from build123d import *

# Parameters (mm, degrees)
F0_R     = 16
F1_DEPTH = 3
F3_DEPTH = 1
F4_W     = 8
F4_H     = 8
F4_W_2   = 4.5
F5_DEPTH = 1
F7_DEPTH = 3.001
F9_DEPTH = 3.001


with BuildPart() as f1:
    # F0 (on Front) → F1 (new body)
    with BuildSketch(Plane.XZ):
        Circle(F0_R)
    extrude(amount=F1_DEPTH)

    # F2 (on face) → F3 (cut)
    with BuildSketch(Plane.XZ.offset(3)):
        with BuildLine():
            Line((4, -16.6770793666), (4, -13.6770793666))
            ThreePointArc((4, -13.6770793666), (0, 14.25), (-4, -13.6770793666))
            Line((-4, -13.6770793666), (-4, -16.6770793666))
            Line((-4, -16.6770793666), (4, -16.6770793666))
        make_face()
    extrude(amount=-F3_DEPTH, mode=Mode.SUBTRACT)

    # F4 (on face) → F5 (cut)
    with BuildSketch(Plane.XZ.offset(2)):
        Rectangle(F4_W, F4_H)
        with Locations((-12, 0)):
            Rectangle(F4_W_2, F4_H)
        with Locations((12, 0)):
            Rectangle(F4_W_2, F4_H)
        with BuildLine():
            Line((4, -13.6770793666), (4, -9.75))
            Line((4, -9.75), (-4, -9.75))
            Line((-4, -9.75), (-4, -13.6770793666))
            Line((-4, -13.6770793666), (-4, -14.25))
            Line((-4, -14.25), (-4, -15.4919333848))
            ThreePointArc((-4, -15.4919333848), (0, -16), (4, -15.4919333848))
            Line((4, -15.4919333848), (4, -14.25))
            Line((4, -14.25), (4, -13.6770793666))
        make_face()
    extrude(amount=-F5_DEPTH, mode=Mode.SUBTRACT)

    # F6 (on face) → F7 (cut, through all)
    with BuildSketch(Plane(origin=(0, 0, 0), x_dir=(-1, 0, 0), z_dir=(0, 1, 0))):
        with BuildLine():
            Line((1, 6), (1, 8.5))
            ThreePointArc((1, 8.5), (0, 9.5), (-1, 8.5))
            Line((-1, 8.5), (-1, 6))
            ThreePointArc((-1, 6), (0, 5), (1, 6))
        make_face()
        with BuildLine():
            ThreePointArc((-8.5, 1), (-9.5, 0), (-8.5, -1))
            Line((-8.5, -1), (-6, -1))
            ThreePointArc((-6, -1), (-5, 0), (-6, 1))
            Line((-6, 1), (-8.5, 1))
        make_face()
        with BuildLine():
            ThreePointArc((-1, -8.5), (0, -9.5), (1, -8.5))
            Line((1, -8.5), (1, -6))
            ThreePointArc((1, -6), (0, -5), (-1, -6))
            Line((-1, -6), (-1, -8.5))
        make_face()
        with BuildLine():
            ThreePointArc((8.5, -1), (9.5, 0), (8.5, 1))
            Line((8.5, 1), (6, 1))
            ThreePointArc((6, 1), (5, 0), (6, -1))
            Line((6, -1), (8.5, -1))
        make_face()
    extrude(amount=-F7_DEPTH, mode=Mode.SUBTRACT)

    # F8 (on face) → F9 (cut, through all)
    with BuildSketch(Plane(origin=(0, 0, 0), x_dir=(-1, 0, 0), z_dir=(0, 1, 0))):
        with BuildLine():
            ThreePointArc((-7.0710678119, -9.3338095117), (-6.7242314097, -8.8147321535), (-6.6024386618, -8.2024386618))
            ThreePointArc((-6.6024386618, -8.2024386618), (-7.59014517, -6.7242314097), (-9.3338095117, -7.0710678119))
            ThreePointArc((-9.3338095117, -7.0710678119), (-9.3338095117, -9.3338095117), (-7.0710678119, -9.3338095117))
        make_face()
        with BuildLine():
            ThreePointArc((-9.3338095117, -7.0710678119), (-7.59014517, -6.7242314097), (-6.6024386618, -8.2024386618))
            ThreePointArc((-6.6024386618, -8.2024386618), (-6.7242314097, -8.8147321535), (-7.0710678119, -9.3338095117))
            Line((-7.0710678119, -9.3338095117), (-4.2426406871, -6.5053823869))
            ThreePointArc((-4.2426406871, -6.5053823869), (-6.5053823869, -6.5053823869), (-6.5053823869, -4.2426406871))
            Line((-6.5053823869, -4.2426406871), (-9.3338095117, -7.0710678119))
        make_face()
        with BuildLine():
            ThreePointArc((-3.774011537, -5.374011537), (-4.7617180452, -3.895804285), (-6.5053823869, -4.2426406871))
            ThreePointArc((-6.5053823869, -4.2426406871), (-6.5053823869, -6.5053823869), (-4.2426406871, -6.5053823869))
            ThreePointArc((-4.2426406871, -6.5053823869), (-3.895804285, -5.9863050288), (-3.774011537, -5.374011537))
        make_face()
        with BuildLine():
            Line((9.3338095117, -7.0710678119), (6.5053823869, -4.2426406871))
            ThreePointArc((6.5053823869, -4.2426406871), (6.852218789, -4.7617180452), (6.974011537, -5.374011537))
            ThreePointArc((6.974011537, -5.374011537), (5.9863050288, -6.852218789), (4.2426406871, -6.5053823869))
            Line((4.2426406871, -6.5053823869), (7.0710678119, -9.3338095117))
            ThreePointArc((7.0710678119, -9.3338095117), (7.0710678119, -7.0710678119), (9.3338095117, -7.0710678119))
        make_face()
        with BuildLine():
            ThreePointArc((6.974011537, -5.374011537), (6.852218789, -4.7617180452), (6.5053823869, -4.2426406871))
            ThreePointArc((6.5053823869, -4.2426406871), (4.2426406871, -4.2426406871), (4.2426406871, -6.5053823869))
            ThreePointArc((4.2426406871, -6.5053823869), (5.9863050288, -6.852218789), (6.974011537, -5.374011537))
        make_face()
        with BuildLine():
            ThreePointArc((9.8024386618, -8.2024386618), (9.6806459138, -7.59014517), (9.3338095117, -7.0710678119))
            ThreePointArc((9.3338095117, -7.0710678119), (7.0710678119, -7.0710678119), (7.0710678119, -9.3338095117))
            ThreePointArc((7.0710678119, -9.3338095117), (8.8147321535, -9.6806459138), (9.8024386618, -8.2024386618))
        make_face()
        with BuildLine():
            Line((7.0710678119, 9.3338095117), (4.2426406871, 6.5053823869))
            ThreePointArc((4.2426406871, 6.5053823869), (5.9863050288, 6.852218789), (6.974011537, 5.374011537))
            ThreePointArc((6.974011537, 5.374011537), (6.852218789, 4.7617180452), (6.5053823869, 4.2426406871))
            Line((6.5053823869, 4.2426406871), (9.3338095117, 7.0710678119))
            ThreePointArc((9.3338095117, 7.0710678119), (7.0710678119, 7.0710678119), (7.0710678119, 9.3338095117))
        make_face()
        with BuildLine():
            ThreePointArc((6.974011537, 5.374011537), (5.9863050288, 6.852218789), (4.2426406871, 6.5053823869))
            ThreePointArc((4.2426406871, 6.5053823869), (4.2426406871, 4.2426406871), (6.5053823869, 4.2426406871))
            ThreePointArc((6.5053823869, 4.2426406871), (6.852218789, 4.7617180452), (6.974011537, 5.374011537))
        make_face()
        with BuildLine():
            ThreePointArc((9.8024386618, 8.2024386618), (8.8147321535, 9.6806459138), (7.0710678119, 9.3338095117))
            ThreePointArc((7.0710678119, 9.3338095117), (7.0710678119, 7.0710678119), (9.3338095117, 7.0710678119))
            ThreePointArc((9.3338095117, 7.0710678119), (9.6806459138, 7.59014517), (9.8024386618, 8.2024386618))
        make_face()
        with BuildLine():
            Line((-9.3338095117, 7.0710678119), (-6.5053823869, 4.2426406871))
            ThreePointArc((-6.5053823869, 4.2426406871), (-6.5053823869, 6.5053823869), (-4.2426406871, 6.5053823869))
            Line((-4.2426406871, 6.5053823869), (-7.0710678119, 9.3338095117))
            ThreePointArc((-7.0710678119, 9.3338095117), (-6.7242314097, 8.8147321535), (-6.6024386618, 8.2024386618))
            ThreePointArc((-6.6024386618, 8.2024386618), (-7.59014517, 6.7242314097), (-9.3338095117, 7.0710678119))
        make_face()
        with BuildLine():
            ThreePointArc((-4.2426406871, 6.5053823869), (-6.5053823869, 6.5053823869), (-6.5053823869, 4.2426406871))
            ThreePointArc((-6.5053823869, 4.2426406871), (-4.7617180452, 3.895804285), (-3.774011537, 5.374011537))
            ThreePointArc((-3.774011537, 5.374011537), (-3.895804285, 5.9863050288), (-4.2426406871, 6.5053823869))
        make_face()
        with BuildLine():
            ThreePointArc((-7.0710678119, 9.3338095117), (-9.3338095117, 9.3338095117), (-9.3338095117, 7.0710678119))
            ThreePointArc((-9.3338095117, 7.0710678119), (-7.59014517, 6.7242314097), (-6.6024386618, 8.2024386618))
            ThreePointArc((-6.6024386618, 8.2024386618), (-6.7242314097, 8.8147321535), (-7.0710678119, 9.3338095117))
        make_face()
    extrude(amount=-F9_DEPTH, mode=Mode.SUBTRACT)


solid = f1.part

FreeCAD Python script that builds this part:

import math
import FreeCAD as App
import Part
import Sketcher
from FreeCAD import Vector
Q = App.Units.Quantity

doc = App.newDocument("Part")
body = doc.addObject("PartDesign::Body", "Body")

# Sketch on XZ plane
sketch1 = body.newObject("Sketcher::SketchObject", "Sketch")
sketch1.AttachmentSupport = (doc.getObject("XZ_Plane"), [""])
sketch1.MapMode = "FlatFace"
sketch1.addGeometry(Part.Circle(Vector(0, 0, 0), Vector(0, 0, 1), 16), False)
sketch1.addConstraint(Sketcher.Constraint("Coincident", 0, 3, -1, 1))
sketch1.addConstraint(Sketcher.Constraint("Diameter", 0, Q("32 mm")))
pad1 = body.newObject("PartDesign::Pad", "Pad")
pad1.Profile = sketch1
pad1.Length = 3

# Sketch on XZ plane
sketch2 = body.newObject("Sketcher::SketchObject", "Sketch001")
sketch2.AttachmentSupport = (doc.getObject("XZ_Plane"), [""])
sketch2.MapMode = "FlatFace"
sketch2.AttachmentOffset = App.Placement(Vector(0, 0, 3), App.Rotation())
sketch2.addGeometry(Part.LineSegment(Vector(4, -16.7, 0), Vector(4, -13.7, 0)), False)
sketch2.addGeometry(Part.ArcOfCircle(Part.Circle(Vector(0, 0, 0), Vector(0, 0, 1), 14.2), math.radians(-74), math.radians(254)), False)
sketch2.addGeometry(Part.LineSegment(Vector(-4, -13.7, 0), Vector(-4, -16.7, 0)), False)
sketch2.addGeometry(Part.LineSegment(Vector(-4, -16.7, 0), Vector(4, -16.7, 0)), False)
sketch2.addConstraint(Sketcher.Constraint("Coincident", 0, 2, 1, 1))
sketch2.addConstraint(Sketcher.Constraint("Coincident", 1, 2, 2, 1))
sketch2.addConstraint(Sketcher.Constraint("Coincident", 2, 2, 3, 1))
sketch2.addConstraint(Sketcher.Constraint("Coincident", 3, 2, 0, 1))
sketch2.addConstraint(Sketcher.Constraint("Vertical", 0))
sketch2.addConstraint(Sketcher.Constraint("Vertical", 2))
sketch2.addConstraint(Sketcher.Constraint("Horizontal", 3))
sketch2.addConstraint(Sketcher.Constraint("Coincident", 1, 3, -1, 1))
sketch2.addConstraint(Sketcher.Constraint("Horizontal", 0, 2, 1, 2))
sketch2.addConstraint(Sketcher.Constraint("DistanceX", 3, 1, 3, 2, Q("8 mm")))
sketch2.addConstraint(Sketcher.Constraint("DistanceY", 0, 1, 0, 2, Q("3 mm")))
sketch2.addConstraint(Sketcher.Constraint("Radius", 1, Q("14.25 mm")))
pocket1 = body.newObject("PartDesign::Pocket", "Pocket")
pocket1.Profile = sketch2
pocket1.Length = 1

# Sketch on XZ plane
sketch3 = body.newObject("Sketcher::SketchObject", "Sketch002")
sketch3.AttachmentSupport = (doc.getObject("XZ_Plane"), [""])
sketch3.MapMode = "FlatFace"
sketch3.AttachmentOffset = App.Placement(Vector(0, 0, 2), App.Rotation())
sketch3.addGeometry(Part.LineSegment(Vector(-4, 4, 0), Vector(-4, -4, 0)), False)
sketch3.addGeometry(Part.LineSegment(Vector(-4, -4, 0), Vector(4, -4, 0)), False)
sketch3.addGeometry(Part.LineSegment(Vector(4, -4, 0), Vector(4, 4, 0)), False)
sketch3.addGeometry(Part.LineSegment(Vector(4, 4, 0), Vector(-4, 4, 0)), False)
sketch3.addGeometry(Part.LineSegment(Vector(-14.2, 4, 0), Vector(-14.2, -4, 0)), False)
sketch3.addGeometry(Part.LineSegment(Vector(-14.2, -4, 0), Vector(-9.8, -4, 0)), False)
sketch3.addGeometry(Part.LineSegment(Vector(-9.8, -4, 0), Vector(-9.8, 4, 0)), False)
sketch3.addGeometry(Part.LineSegment(Vector(-9.8, 4, 0), Vector(-14.2, 4, 0)), False)
sketch3.addGeometry(Part.LineSegment(Vector(9.8, 4, 0), Vector(9.8, -4, 0)), False)
sketch3.addGeometry(Part.LineSegment(Vector(9.8, -4, 0), Vector(14.2, -4, 0)), False)
sketch3.addGeometry(Part.LineSegment(Vector(14.2, -4, 0), Vector(14.2, 4, 0)), False)
sketch3.addGeometry(Part.LineSegment(Vector(14.2, 4, 0), Vector(9.8, 4, 0)), False)
sketch3.addGeometry(Part.LineSegment(Vector(4, -9.8, 0), Vector(-4, -9.8, 0)), False)
sketch3.addGeometry(Part.LineSegment(Vector(-4, -9.8, 0), Vector(-4, -15.5, 0)), False)
sketch3.addGeometry(Part.ArcOfCircle(Part.Circle(Vector(0, 0, 0), Vector(0, 0, 1), 16), math.radians(-104), math.radians(-76)), False)
sketch3.addGeometry(Part.LineSegment(Vector(4, -15.5, 0), Vector(4, -9.8, 0)), False)
sketch3.addConstraint(Sketcher.Constraint("Coincident", 0, 2, 1, 1))
sketch3.addConstraint(Sketcher.Constraint("Coincident", 1, 2, 2, 1))
sketch3.addConstraint(Sketcher.Constraint("Coincident", 2, 2, 3, 1))
sketch3.addConstraint(Sketcher.Constraint("Coincident", 3, 2, 0, 1))
sketch3.addConstraint(Sketcher.Constraint("Coincident", 4, 2, 5, 1))
sketch3.addConstraint(Sketcher.Constraint("Coincident", 5, 2, 6, 1))
sketch3.addConstraint(Sketcher.Constraint("Coincident", 6, 2, 7, 1))
sketch3.addConstraint(Sketcher.Constraint("Coincident", 7, 2, 4, 1))
sketch3.addConstraint(Sketcher.Constraint("Coincident", 8, 2, 9, 1))
sketch3.addConstraint(Sketcher.Constraint("Coincident", 9, 2, 10, 1))
sketch3.addConstraint(Sketcher.Constraint("Coincident", 10, 2, 11, 1))
sketch3.addConstraint(Sketcher.Constraint("Coincident", 11, 2, 8, 1))
sketch3.addConstraint(Sketcher.Constraint("Coincident", 12, 2, 13, 1))
sketch3.addConstraint(Sketcher.Constraint("Coincident", 13, 2, 14, 1))
sketch3.addConstraint(Sketcher.Constraint("Coincident", 14, 2, 15, 1))
sketch3.addConstraint(Sketcher.Constraint("Coincident", 15, 2, 12, 1))
sketch3.addConstraint(Sketcher.Constraint("Vertical", 0))
sketch3.addConstraint(Sketcher.Constraint("Horizontal", 1))
sketch3.addConstraint(Sketcher.Constraint("Vertical", 2))
sketch3.addConstraint(Sketcher.Constraint("Horizontal", 3))
sketch3.addConstraint(Sketcher.Constraint("Vertical", 4))
sketch3.addConstraint(Sketcher.Constraint("Horizontal", 5))
sketch3.addConstraint(Sketcher.Constraint("Vertical", 6))
sketch3.addConstraint(Sketcher.Constraint("Horizontal", 7))
sketch3.addConstraint(Sketcher.Constraint("Vertical", 8))
sketch3.addConstraint(Sketcher.Constraint("Horizontal", 9))
sketch3.addConstraint(Sketcher.Constraint("Vertical", 10))
sketch3.addConstraint(Sketcher.Constraint("Horizontal", 11))
sketch3.addConstraint(Sketcher.Constraint("Horizontal", 12))
sketch3.addConstraint(Sketcher.Constraint("Vertical", 13))
sketch3.addConstraint(Sketcher.Constraint("Vertical", 15))
sketch3.addConstraint(Sketcher.Constraint("Coincident", 14, 3, -1, 1))
sketch3.addConstraint(Sketcher.Constraint("Symmetric", 0, 2, 2, 2, -1, 1))
sketch3.addConstraint(Sketcher.Constraint("Symmetric", 6, 2, 8, 2, -1, 1))
sketch3.addConstraint(Sketcher.Constraint("Symmetric", 4, 2, 10, 2, -1, 1))
sketch3.addConstraint(Sketcher.Constraint("Horizontal", 1, 2, 4, 2))
sketch3.addConstraint(Sketcher.Constraint("Horizontal", 3, 2, 6, 2))
sketch3.addConstraint(Sketcher.Constraint("Horizontal", 13, 2, 14, 2))
sketch3.addConstraint(Sketcher.Constraint("Vertical", 3, 2, 12, 2))
sketch3.addConstraint(Sketcher.Constraint("Equal", 12, 0))
sketch3.addConstraint(Sketcher.Constraint("Radius", 14, Q("16 mm")))
sketch3.addConstraint(Sketcher.Constraint("DistanceX", 1, 1, 1, 2, Q("8 mm")))
sketch3.addConstraint(Sketcher.Constraint("DistanceX", 5, 1, 5, 2, Q("4.5 mm")))
sketch3.addConstraint(Sketcher.Constraint("DistanceX", 4, 2, -1, 1, Q("14.25 mm")))
sketch3.addConstraint(Sketcher.Constraint("DistanceY", 12, 2, -1, 1, Q("9.75 mm")))
pocket2 = body.newObject("PartDesign::Pocket", "Pocket001")
pocket2.Profile = sketch3
pocket2.Length = 1

# Sketch on XZ plane
sketch4 = body.newObject("Sketcher::SketchObject", "Sketch003")
sketch4.AttachmentSupport = (doc.getObject("XZ_Plane"), [""])
sketch4.MapMode = "FlatFace"
sketch4.addGeometry(Part.LineSegment(Vector(-1, 6, 0), Vector(-1, 8.5, 0)), False)
sketch4.addGeometry(Part.ArcOfCircle(Part.Circle(Vector(0, 8.5, 0), Vector(0, 0, 1), 1), math.radians(0), math.radians(180)), False)
sketch4.addGeometry(Part.LineSegment(Vector(1, 8.5, 0), Vector(1, 6, 0)), False)
sketch4.addGeometry(Part.ArcOfCircle(Part.Circle(Vector(0, 6, 0), Vector(0, 0, 1), 1), math.radians(180), math.radians(360)), False)
sketch4.addGeometry(Part.ArcOfCircle(Part.Circle(Vector(8.5, 0, 0), Vector(0, 0, 1), 1), math.radians(-90), math.radians(90)), False)
sketch4.addGeometry(Part.LineSegment(Vector(8.5, -1, 0), Vector(6, -1, 0)), False)
sketch4.addGeometry(Part.ArcOfCircle(Part.Circle(Vector(6, 0, 0), Vector(0, 0, 1), 1), math.radians(90), math.radians(270)), False)
sketch4.addGeometry(Part.LineSegment(Vector(6, 1, 0), Vector(8.5, 1, 0)), False)
sketch4.addGeometry(Part.ArcOfCircle(Part.Circle(Vector(0, -8.5, 0), Vector(0, 0, 1), 1), math.radians(180), math.radians(360)), False)
sketch4.addGeometry(Part.LineSegment(Vector(-1, -8.5, 0), Vector(-1, -6, 0)), False)
sketch4.addGeometry(Part.ArcOfCircle(Part.Circle(Vector(0, -6, 0), Vector(0, 0, 1), 1), math.radians(0), math.radians(180)), False)
sketch4.addGeometry(Part.LineSegment(Vector(1, -6, 0), Vector(1, -8.5, 0)), False)
sketch4.addGeometry(Part.ArcOfCircle(Part.Circle(Vector(-8.5, 0, 0), Vector(0, 0, 1), 1), math.radians(90), math.radians(270)), False)
sketch4.addGeometry(Part.LineSegment(Vector(-8.5, 1, 0), Vector(-6, 1, 0)), False)
sketch4.addGeometry(Part.ArcOfCircle(Part.Circle(Vector(-6, 0, 0), Vector(0, 0, 1), 1), math.radians(-90), math.radians(90)), False)
sketch4.addGeometry(Part.LineSegment(Vector(-6, -1, 0), Vector(-8.5, -1, 0)), False)
sketch4.addConstraint(Sketcher.Constraint("Tangent", 0, 2, 1, 2))
sketch4.addConstraint(Sketcher.Constraint("Tangent", 1, 1, 2, 1))
sketch4.addConstraint(Sketcher.Constraint("Tangent", 2, 2, 3, 2))
sketch4.addConstraint(Sketcher.Constraint("Tangent", 3, 1, 0, 1))
sketch4.addConstraint(Sketcher.Constraint("Tangent", 4, 1, 5, 1))
sketch4.addConstraint(Sketcher.Constraint("Tangent", 5, 2, 6, 2))
sketch4.addConstraint(Sketcher.Constraint("Tangent", 6, 1, 7, 1))
sketch4.addConstraint(Sketcher.Constraint("Tangent", 7, 2, 4, 2))
sketch4.addConstraint(Sketcher.Constraint("Tangent", 8, 1, 9, 1))
sketch4.addConstraint(Sketcher.Constraint("Tangent", 9, 2, 10, 2))
sketch4.addConstraint(Sketcher.Constraint("Tangent", 10, 1, 11, 1))
sketch4.addConstraint(Sketcher.Constraint("Tangent", 11, 2, 8, 2))
sketch4.addConstraint(Sketcher.Constraint("Tangent", 12, 1, 13, 1))
sketch4.addConstraint(Sketcher.Constraint("Tangent", 13, 2, 14, 2))
sketch4.addConstraint(Sketcher.Constraint("Tangent", 14, 1, 15, 1))
sketch4.addConstraint(Sketcher.Constraint("Tangent", 15, 2, 12, 2))
sketch4.addConstraint(Sketcher.Constraint("Vertical", 0))
sketch4.addConstraint(Sketcher.Constraint("Vertical", 2))
sketch4.addConstraint(Sketcher.Constraint("Horizontal", 5))
sketch4.addConstraint(Sketcher.Constraint("Horizontal", 7))
sketch4.addConstraint(Sketcher.Constraint("Vertical", 9))
sketch4.addConstraint(Sketcher.Constraint("Vertical", 11))
sketch4.addConstraint(Sketcher.Constraint("Horizontal", 13))
sketch4.addConstraint(Sketcher.Constraint("Horizontal", 15))
sketch4.addConstraint(Sketcher.Constraint("Equal", 3, 4))
sketch4.addConstraint(Sketcher.Constraint("Equal", 6, 8))
sketch4.addConstraint(Sketcher.Constraint("Equal", 10, 12))
sketch4.addConstraint(Sketcher.Constraint("Symmetric", 1, 3, 8, 3, -1, 1))
sketch4.addConstraint(Sketcher.Constraint("Symmetric", 4, 3, 12, 3, -1, 1))
sketch4.addConstraint(Sketcher.Constraint("Symmetric", 6, 3, 14, 3, -2))
sketch4.addConstraint(Sketcher.Constraint("Symmetric", 3, 3, 10, 3, -1))
sketch4.addConstraint(Sketcher.Constraint("Equal", 15, 0))
sketch4.addConstraint(Sketcher.Constraint("Radius", 1, Q("1 mm")))
sketch4.addConstraint(Sketcher.Constraint("DistanceX", 5, 2, 5, 1, Q("2.5 mm")))
sketch4.addConstraint(Sketcher.Constraint("DistanceY", -1, 1, 3, 3, Q("6 mm")))
sketch4.addConstraint(Sketcher.Constraint("DistanceX", -1, 1, 6, 3, Q("6 mm")))
pocket3 = body.newObject("PartDesign::Pocket", "Pocket002")
pocket3.Profile = sketch4
pocket3.Type = "ThroughAll"
pocket3.Reversed = True

# Sketch on XZ plane
sketch5 = body.newObject("Sketcher::SketchObject", "Sketch004")
sketch5.AttachmentSupport = (doc.getObject("XZ_Plane"), [""])
sketch5.MapMode = "FlatFace"
sketch5.addGeometry(Part.ArcOfCircle(Part.Circle(Vector(8.2, -8.2, 0), Vector(0, 0, 1), 1.6), math.radians(-135), math.radians(45)), False)
sketch5.addGeometry(Part.LineSegment(Vector(7.1, -9.3, 0), Vector(4.2, -6.5, 0)), False)
sketch5.addGeometry(Part.ArcOfCircle(Part.Circle(Vector(5.4, -5.4, 0), Vector(0, 0, 1), 1.6), math.radians(180), math.radians(225)), False)
sketch5.addGeometry(Part.ArcOfCircle(Part.Circle(Vector(5.4, -5.4, 0), Vector(0, 0, 1), 1.6), math.radians(45), math.radians(180)), False)
sketch5.addGeometry(Part.LineSegment(Vector(6.5, -4.2, 0), Vector(9.3, -7.1, 0)), False)
sketch5.addGeometry(Part.LineSegment(Vector(-9.3, -7.1, 0), Vector(-6.5, -4.2, 0)), False)
sketch5.addGeometry(Part.ArcOfCircle(Part.Circle(Vector(-5.4, -5.4, 0), Vector(0, 0, 1), 1.6), math.radians(-45), math.radians(135)), False)
sketch5.addGeometry(Part.LineSegment(Vector(-4.2, -6.5, 0), Vector(-7.1, -9.3, 0)), False)
sketch5.addGeometry(Part.ArcOfCircle(Part.Circle(Vector(-8.2, -8.2, 0), Vector(0, 0, 1), 1.6), math.radians(180), math.radians(315)), False)
sketch5.addGeometry(Part.ArcOfCircle(Part.Circle(Vector(-8.2, -8.2, 0), Vector(0, 0, 1), 1.6), math.radians(135), math.radians(180)), False)
sketch5.addGeometry(Part.LineSegment(Vector(-7.1, 9.3, 0), Vector(-4.2, 6.5, 0)), False)
sketch5.addGeometry(Part.ArcOfCircle(Part.Circle(Vector(-5.4, 5.4, 0), Vector(0, 0, 1), 1.6), math.radians(-135), math.radians(45)), False)
sketch5.addGeometry(Part.LineSegment(Vector(-6.5, 4.2, 0), Vector(-9.3, 7.1, 0)), False)
sketch5.addGeometry(Part.ArcOfCircle(Part.Circle(Vector(-8.2, 8.2, 0), Vector(0, 0, 1), 1.6), math.radians(180), math.radians(225)), False)
sketch5.addGeometry(Part.ArcOfCircle(Part.Circle(Vector(-8.2, 8.2, 0), Vector(0, 0, 1), 1.6), math.radians(45), math.radians(180)), False)
sketch5.addGeometry(Part.LineSegment(Vector(9.3, 7.1, 0), Vector(6.5, 4.2, 0)), False)
sketch5.addGeometry(Part.ArcOfCircle(Part.Circle(Vector(5.4, 5.4, 0), Vector(0, 0, 1), 1.6), math.radians(180), math.radians(315)), False)
sketch5.addGeometry(Part.ArcOfCircle(Part.Circle(Vector(5.4, 5.4, 0), Vector(0, 0, 1), 1.6), math.radians(135), math.radians(180)), False)
sketch5.addGeometry(Part.LineSegment(Vector(4.2, 6.5, 0), Vector(7.1, 9.3, 0)), False)
sketch5.addGeometry(Part.ArcOfCircle(Part.Circle(Vector(8.2, 8.2, 0), Vector(0, 0, 1), 1.6), math.radians(-45), math.radians(135)), False)
sketch5.addConstraint(Sketcher.Constraint("Tangent", 0, 1, 1, 1))
sketch5.addConstraint(Sketcher.Constraint("Tangent", 1, 2, 2, 2))
sketch5.addConstraint(Sketcher.Constraint("Tangent", 2, 1, 3, 2))
sketch5.addConstraint(Sketcher.Constraint("Tangent", 3, 1, 4, 1))
sketch5.addConstraint(Sketcher.Constraint("Tangent", 4, 2, 0, 2))
sketch5.addConstraint(Sketcher.Constraint("Tangent", 5, 2, 6, 2))
sketch5.addConstraint(Sketcher.Constraint("Tangent", 6, 1, 7, 1))
sketch5.addConstraint(Sketcher.Constraint("Tangent", 7, 2, 8, 2))
sketch5.addConstraint(Sketcher.Constraint("Tangent", 8, 1, 9, 2))
sketch5.addConstraint(Sketcher.Constraint("Tangent", 9, 1, 5, 1))
sketch5.addConstraint(Sketcher.Constraint("Tangent", 10, 2, 11, 2))
sketch5.addConstraint(Sketcher.Constraint("Tangent", 11, 1, 12, 1))
sketch5.addConstraint(Sketcher.Constraint("Tangent", 12, 2, 13, 2))
sketch5.addConstraint(Sketcher.Constraint("Tangent", 13, 1, 14, 2))
sketch5.addConstraint(Sketcher.Constraint("Tangent", 14, 1, 10, 1))
sketch5.addConstraint(Sketcher.Constraint("Tangent", 15, 2, 16, 2))
sketch5.addConstraint(Sketcher.Constraint("Tangent", 16, 1, 17, 2))
sketch5.addConstraint(Sketcher.Constraint("Tangent", 17, 1, 18, 1))
sketch5.addConstraint(Sketcher.Constraint("Tangent", 18, 2, 19, 2))
sketch5.addConstraint(Sketcher.Constraint("Tangent", 19, 1, 15, 1))
sketch5.addConstraint(Sketcher.Constraint("Equal", 0, 2))
sketch5.addConstraint(Sketcher.Constraint("Equal", 2, 3))
sketch5.addConstraint(Sketcher.Constraint("Equal", 3, 6))
sketch5.addConstraint(Sketcher.Constraint("Equal", 6, 8))
sketch5.addConstraint(Sketcher.Constraint("Equal", 8, 9))
sketch5.addConstraint(Sketcher.Constraint("Equal", 9, 11))
sketch5.addConstraint(Sketcher.Constraint("Equal", 11, 13))
sketch5.addConstraint(Sketcher.Constraint("Equal", 13, 14))
sketch5.addConstraint(Sketcher.Constraint("Equal", 14, 16))
sketch5.addConstraint(Sketcher.Constraint("Equal", 16, 17))
sketch5.addConstraint(Sketcher.Constraint("Equal", 17, 19))
sketch5.addConstraint(Sketcher.Constraint("Symmetric", 2, 3, 11, 3, -1, 1))
sketch5.addConstraint(Sketcher.Constraint("Symmetric", 0, 3, 13, 3, -1, 1))
sketch5.addConstraint(Sketcher.Constraint("Symmetric", 6, 3, 16, 3, -1, 1))
sketch5.addConstraint(Sketcher.Constraint("Symmetric", 8, 3, 19, 3, -1, 1))
sketch5.addConstraint(Sketcher.Constraint("Symmetric", 2, 3, 6, 3, -2))
sketch5.addConstraint(Sketcher.Constraint("Symmetric", 0, 3, 8, 3, -2))
sketch5.addConstraint(Sketcher.Constraint("Perpendicular", 4, 5))
sketch5.addConstraint(Sketcher.Constraint("Horizontal", 6, 3, 2, 1))
sketch5.addConstraint(Sketcher.Constraint("Horizontal", 9, 3, 8, 1))
sketch5.addConstraint(Sketcher.Constraint("Horizontal", 19, 3, 13, 1))
sketch5.addConstraint(Sketcher.Constraint("Horizontal", 17, 3, 16, 1))
sketch5.addConstraint(Sketcher.Constraint("Radius", 0, Q("1.6 mm")))
sketch5.addConstraint(Sketcher.Constraint("Distance", 1, Q("4 mm")))
sketch5.addConstraint(Sketcher.Constraint("DistanceX", -1, 1, 0, 3, Q("8.202439 mm")))
sketch5.addConstraint(Sketcher.Constraint("DistanceY", 0, 3, -1, 1, Q("8.202439 mm")))
pocket4 = body.newObject("PartDesign::Pocket", "Pocket003")
pocket4.Profile = sketch5
pocket4.Type = "ThroughAll"
pocket4.Reversed = True

doc.recompute()
